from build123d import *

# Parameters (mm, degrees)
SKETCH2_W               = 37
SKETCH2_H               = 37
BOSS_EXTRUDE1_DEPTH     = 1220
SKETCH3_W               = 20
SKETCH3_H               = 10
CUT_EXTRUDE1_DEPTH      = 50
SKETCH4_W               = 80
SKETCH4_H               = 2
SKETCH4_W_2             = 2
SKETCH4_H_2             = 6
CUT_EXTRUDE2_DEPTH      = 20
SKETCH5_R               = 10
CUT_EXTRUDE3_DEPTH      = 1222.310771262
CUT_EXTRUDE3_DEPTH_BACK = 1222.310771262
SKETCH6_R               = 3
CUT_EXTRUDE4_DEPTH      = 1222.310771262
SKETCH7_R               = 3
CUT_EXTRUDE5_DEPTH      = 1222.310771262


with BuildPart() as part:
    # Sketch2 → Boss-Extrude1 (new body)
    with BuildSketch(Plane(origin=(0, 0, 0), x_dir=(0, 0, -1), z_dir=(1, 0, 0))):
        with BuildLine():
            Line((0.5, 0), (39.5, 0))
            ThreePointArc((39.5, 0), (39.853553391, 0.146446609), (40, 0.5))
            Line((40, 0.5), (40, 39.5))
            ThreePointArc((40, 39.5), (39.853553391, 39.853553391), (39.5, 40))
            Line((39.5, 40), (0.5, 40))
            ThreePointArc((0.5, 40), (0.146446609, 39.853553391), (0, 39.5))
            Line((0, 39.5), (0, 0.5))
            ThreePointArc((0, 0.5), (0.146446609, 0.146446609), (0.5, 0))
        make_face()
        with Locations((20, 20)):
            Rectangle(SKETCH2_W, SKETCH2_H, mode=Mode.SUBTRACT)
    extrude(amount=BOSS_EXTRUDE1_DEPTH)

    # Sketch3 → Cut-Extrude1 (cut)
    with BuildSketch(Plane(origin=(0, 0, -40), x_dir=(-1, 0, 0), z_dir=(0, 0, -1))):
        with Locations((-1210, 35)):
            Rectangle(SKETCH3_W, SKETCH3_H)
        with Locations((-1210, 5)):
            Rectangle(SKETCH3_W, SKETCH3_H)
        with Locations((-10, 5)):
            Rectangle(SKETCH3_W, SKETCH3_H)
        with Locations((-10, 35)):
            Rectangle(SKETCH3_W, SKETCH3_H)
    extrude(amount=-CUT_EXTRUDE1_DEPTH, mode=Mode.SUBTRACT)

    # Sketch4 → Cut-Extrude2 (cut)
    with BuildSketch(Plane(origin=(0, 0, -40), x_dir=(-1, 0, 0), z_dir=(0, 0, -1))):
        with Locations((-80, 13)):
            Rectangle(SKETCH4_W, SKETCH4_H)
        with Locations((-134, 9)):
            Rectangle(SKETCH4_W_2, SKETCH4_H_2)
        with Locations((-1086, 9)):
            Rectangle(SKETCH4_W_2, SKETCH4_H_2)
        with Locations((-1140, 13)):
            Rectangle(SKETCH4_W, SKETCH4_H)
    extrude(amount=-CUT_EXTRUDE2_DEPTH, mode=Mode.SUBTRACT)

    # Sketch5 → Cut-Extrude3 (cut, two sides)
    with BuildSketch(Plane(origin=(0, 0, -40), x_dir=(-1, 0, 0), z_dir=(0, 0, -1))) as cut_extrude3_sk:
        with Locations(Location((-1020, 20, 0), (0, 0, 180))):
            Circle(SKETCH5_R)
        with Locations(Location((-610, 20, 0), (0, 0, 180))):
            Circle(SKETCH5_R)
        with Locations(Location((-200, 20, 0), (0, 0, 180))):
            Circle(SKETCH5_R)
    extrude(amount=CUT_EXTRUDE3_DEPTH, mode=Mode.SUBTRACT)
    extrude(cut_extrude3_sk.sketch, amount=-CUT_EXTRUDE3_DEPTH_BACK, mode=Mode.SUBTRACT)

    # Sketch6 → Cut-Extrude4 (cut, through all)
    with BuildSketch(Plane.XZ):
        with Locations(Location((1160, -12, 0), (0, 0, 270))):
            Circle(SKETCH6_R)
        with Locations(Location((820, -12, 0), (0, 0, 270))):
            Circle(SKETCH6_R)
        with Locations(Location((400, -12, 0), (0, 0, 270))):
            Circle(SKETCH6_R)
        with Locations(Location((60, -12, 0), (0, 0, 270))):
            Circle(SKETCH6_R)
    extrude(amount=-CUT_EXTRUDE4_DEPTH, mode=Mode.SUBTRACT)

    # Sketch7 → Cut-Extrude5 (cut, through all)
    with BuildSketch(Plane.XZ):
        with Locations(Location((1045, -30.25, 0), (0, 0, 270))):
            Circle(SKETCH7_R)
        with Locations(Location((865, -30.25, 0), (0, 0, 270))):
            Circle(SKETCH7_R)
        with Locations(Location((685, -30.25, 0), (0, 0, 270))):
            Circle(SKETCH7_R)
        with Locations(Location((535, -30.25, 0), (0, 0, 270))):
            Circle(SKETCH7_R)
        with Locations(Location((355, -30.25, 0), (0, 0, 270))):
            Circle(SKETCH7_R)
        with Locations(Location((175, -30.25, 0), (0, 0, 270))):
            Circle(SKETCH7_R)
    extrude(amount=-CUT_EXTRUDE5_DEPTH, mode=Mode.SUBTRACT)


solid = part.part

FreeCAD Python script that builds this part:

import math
import FreeCAD as App
import Part
import Sketcher

V = App.Vector

doc = App.newDocument("Part")
body = doc.addObject("PartDesign::Body", "Body")

# Sketch on YZ plane
sketch1 = doc.addObject("Sketcher::SketchObject", "Sketch")
body.addObject(sketch1)
sketch1.AttachmentSupport = (doc.YZ_Plane, [""])
sketch1.MapMode = "FlatFace"
sketch1.addGeometry([
    Part.LineSegment(V(0, -0.5, 0), V(0, -39.5, 0)),  # 0
    Part.ArcOfCircle(Part.Circle(V(0.5, -39.5, 0), V(0, 0, 1), 0.5), math.radians(180), math.radians(270)),  # 1
    Part.LineSegment(V(0.5, -40, 0), V(39.5, -40, 0)),  # 2
    Part.ArcOfCircle(Part.Circle(V(39.5, -39.5, 0), V(0, 0, 1), 0.5), math.radians(-90), math.radians(0)),  # 3
    Part.LineSegment(V(40, -39.5, 0), V(40, -0.5, 0)),  # 4
    Part.ArcOfCircle(Part.Circle(V(39.5, -0.5, 0), V(0, 0, 1), 0.5), math.radians(0), math.radians(90)),  # 5
    Part.LineSegment(V(39.5, 0, 0), V(0.5, 0, 0)),  # 6
    Part.ArcOfCircle(Part.Circle(V(0.5, -0.5, 0), V(0, 0, 1), 0.5), math.radians(90), math.radians(180)),  # 7
    Part.LineSegment(V(1.5, -38.5, 0), V(1.5, -1.5, 0)),  # 8
    Part.LineSegment(V(1.5, -1.5, 0), V(38.5, -1.5, 0)),  # 9
    Part.LineSegment(V(38.5, -1.5, 0), V(38.5, -38.5, 0)),  # 10
    Part.LineSegment(V(38.5, -38.5, 0), V(1.5, -38.5, 0)),  # 11
], False)
sketch1.addConstraint([
    Sketcher.Constraint("Tangent", 0, 2, 1, 1),
    Sketcher.Constraint("Tangent", 1, 2, 2, 1),
    Sketcher.Constraint("Tangent", 2, 2, 3, 1),
    Sketcher.Constraint("Tangent", 3, 2, 4, 1),
    Sketcher.Constraint("Tangent", 4, 2, 5, 1),
    Sketcher.Constraint("Tangent", 5, 2, 6, 1),
    Sketcher.Constraint("Tangent", 6, 2, 7, 1),
    Sketcher.Constraint("Tangent", 7, 2, 0, 1),
    Sketcher.Constraint("Coincident", 8, 2, 9, 1),
    Sketcher.Constraint("Coincident", 9, 2, 10, 1),
    Sketcher.Constraint("Coincident", 10, 2, 11, 1),
    Sketcher.Constraint("Coincident", 11, 2, 8, 1),
    Sketcher.Constraint("Vertical", 0),
    Sketcher.Constraint("Horizontal", 2),
    Sketcher.Constraint("Vertical", 4),
    Sketcher.Constraint("Horizontal", 6),
    Sketcher.Constraint("Vertical", 8),
    Sketcher.Constraint("Horizontal", 9),
    Sketcher.Constraint("Vertical", 10),
    Sketcher.Constraint("Horizontal", 11),
    Sketcher.Constraint("Equal", 1, 3),
    Sketcher.Constraint("Equal", 3, 5),
    Sketcher.Constraint("Equal", 5, 7),
    Sketcher.Constraint("PointOnObject", 0, 2, -2),
    Sketcher.Constraint("PointOnObject", 5, 2, -1),
    Sketcher.Constraint("Equal", 6, 0),
    Sketcher.Constraint("Equal", 11, 8),
    Sketcher.Constraint("Radius", 1, 0.5),
    Sketcher.Constraint("DistanceX", 2, 1, 2, 2, 39.0),
    Sketcher.Constraint("DistanceX", 9, 1, 9, 2, 37.0),
    Sketcher.Constraint("DistanceX", 7, 3, 8, 2, 1.0),
    Sketcher.Constraint("DistanceY", 8, 2, 7, 3, 1.0),
])
pad1 = doc.addObject("PartDesign::Pad", "Pad")
body.addObject(pad1)
pad1.Profile = sketch1
pad1.Length = 1220

# Sketch on XY plane
sketch2 = doc.addObject("Sketcher::SketchObject", "Sketch001")
body.addObject(sketch2)
sketch2.AttachmentSupport = (doc.XY_Plane, [""])
sketch2.MapMode = "FlatFace"
sketch2.AttachmentOffset = App.Placement(V(0, 0, -40), App.Rotation())
sketch2.addGeometry([
    Part.LineSegment(V(1220, 40, 0), V(1220, 30, 0)),  # 0
    Part.LineSegment(V(1220, 30, 0), V(1200, 30, 0)),  # 1
    Part.LineSegment(V(1200, 30, 0), V(1200, 40, 0)),  # 2
    Part.LineSegment(V(1200, 40, 0), V(1220, 40, 0)),  # 3
    Part.LineSegment(V(1220, 10, 0), V(1220, 0, 0)),  # 4
    Part.LineSegment(V(1220, 0, 0), V(1200, 0, 0)),  # 5
    Part.LineSegment(V(1200, 0, 0), V(1200, 10, 0)),  # 6
    Part.LineSegment(V(1200, 10, 0), V(1220, 10, 0)),  # 7
    Part.LineSegment(V(20, 10, 0), V(20, 0, 0)),  # 8
    Part.LineSegment(V(20, 0, 0), V(0, 0, 0)),  # 9
    Part.LineSegment(V(0, 0, 0), V(0, 10, 0)),  # 10
    Part.LineSegment(V(0, 10, 0), V(20, 10, 0)),  # 11
    Part.LineSegment(V(20, 40, 0), V(20, 30, 0)),  # 12
    Part.LineSegment(V(20, 30, 0), V(0, 30, 0)),  # 13
    Part.LineSegment(V(0, 30, 0), V(0, 40, 0)),  # 14
    Part.LineSegment(V(0, 40, 0), V(20, 40, 0)),  # 15
], False)
sketch2.addConstraint([
    Sketcher.Constraint("Coincident", 0, 2, 1, 1),
    Sketcher.Constraint("Coincident", 1, 2, 2, 1),
    Sketcher.Constraint("Coincident", 2, 2, 3, 1),
    Sketcher.Constraint("Coincident", 3, 2, 0, 1),
    Sketcher.Constraint("Coincident", 4, 2, 5, 1),
    Sketcher.Constraint("Coincident", 5, 2, 6, 1),
    Sketcher.Constraint("Coincident", 6, 2, 7, 1),
    Sketcher.Constraint("Coincident", 7, 2, 4, 1),
    Sketcher.Constraint("Coincident", 8, 2, 9, 1),
    Sketcher.Constraint("Coincident", 9, 2, 10, 1),
    Sketcher.Constraint("Coincident", 10, 2, 11, 1),
    Sketcher.Constraint("Coincident", 11, 2, 8, 1),
    Sketcher.Constraint("Coincident", 12, 2, 13, 1),
    Sketcher.Constraint("Coincident", 13, 2, 14, 1),
    Sketcher.Constraint("Coincident", 14, 2, 15, 1),
    Sketcher.Constraint("Coincident", 15, 2, 12, 1),
    Sketcher.Constraint("Vertical", 0),
    Sketcher.Constraint("Horizontal", 1),
    Sketcher.Constraint("Vertical", 2),
    Sketcher.Constraint("Horizontal", 3),
    Sketcher.Constraint("Vertical", 4),
    Sketcher.Constraint("Horizontal", 5),
    Sketcher.Constraint("Vertical", 6),
    Sketcher.Constraint("Horizontal", 7),
    Sketcher.Constraint("Vertical", 8),
    Sketcher.Constraint("Horizontal", 9),
    Sketcher.Constraint("Vertical", 10),
    Sketcher.Constraint("Horizontal", 11),
    Sketcher.Constraint("Vertical", 12),
    Sketcher.Constraint("Horizontal", 13),
    Sketcher.Constraint("Vertical", 14),
    Sketcher.Constraint("Horizontal", 15),
    Sketcher.Constraint("Coincident", 9, 2, -1, 1),
    Sketcher.Constraint("PointOnObject", 4, 2, -1),
    Sketcher.Constraint("PointOnObject", 13, 2, -2),
    Sketcher.Constraint("Horizontal", 7, 2, 10, 2),
    Sketcher.Constraint("Horizontal", 1, 2, 12, 2),
    Sketcher.Constraint("Horizontal", 3, 2, 14, 2),
    Sketcher.Constraint("Vertical", 3, 2, 4, 2),
    Sketcher.Constraint("Vertical", 2, 2, 5, 2),
    Sketcher.Constraint("Vertical", 11, 2, 12, 2),
    Sketcher.Constraint("Equal", 7, 9),
    Sketcher.Constraint("Equal", 2, 4),
    Sketcher.Constraint("DistanceX", 1, 2, 1, 1, 20.0),
    Sketcher.Constraint("DistanceY", 0, 2, 0, 1, 10.0),
    Sketcher.Constraint("DistanceX", -1, 1, 0, 2, 1220.0),
    Sketcher.Constraint("DistanceY", -1, 1, 0, 2, 30.0),
])
pocket1 = doc.addObject("PartDesign::Pocket", "Pocket")
body.addObject(pocket1)
pocket1.Profile = sketch2
pocket1.Length = 50
pocket1.Reversed = True

# Sketch on XY plane
sketch3 = doc.addObject("Sketcher::SketchObject", "Sketch002")
body.addObject(sketch3)
sketch3.AttachmentSupport = (doc.XY_Plane, [""])
sketch3.MapMode = "FlatFace"
sketch3.AttachmentOffset = App.Placement(V(0, 0, -40), App.Rotation())
sketch3.addGeometry([
    Part.LineSegment(V(120, 14, 0), V(120, 12, 0)),  # 0
    Part.LineSegment(V(120, 12, 0), V(40, 12, 0)),  # 1
    Part.LineSegment(V(40, 12, 0), V(40, 14, 0)),  # 2
    Part.LineSegment(V(40, 14, 0), V(120, 14, 0)),  # 3
    Part.LineSegment(V(135, 12, 0), V(135, 6, 0)),  # 4
    Part.LineSegment(V(135, 6, 0), V(133, 6, 0)),  # 5
    Part.LineSegment(V(133, 6, 0), V(133, 12, 0)),  # 6
    Part.LineSegment(V(133, 12, 0), V(135, 12, 0)),  # 7
    Part.LineSegment(V(1087, 12, 0), V(1087, 6, 0)),  # 8
    Part.LineSegment(V(1087, 6, 0), V(1085, 6, 0)),  # 9
    Part.LineSegment(V(1085, 6, 0), V(1085, 12, 0)),  # 10
    Part.LineSegment(V(1085, 12, 0), V(1087, 12, 0)),  # 11
    Part.LineSegment(V(1180, 14, 0), V(1180, 12, 0)),  # 12
    Part.LineSegment(V(1180, 12, 0), V(1100, 12, 0)),  # 13
    Part.LineSegment(V(1100, 12, 0), V(1100, 14, 0)),  # 14
    Part.LineSegment(V(1100, 14, 0), V(1180, 14, 0)),  # 15
], False)
sketch3.addConstraint([
    Sketcher.Constraint("Coincident", 0, 2, 1, 1),
    Sketcher.Constraint("Coincident", 1, 2, 2, 1),
    Sketcher.Constraint("Coincident", 2, 2, 3, 1),
    Sketcher.Constraint("Coincident", 3, 2, 0, 1),
    Sketcher.Constraint("Coincident", 4, 2, 5, 1),
    Sketcher.Constraint("Coincident", 5, 2, 6, 1),
    Sketcher.Constraint("Coincident", 6, 2, 7, 1),
    Sketcher.Constraint("Coincident", 7, 2, 4, 1),
    Sketcher.Constraint("Coincident", 8, 2, 9, 1),
    Sketcher.Constraint("Coincident", 9, 2, 10, 1),
    Sketcher.Constraint("Coincident", 10, 2, 11, 1),
    Sketcher.Constraint("Coincident", 11, 2, 8, 1),
    Sketcher.Constraint("Coincident", 12, 2, 13, 1),
    Sketcher.Constraint("Coincident", 13, 2, 14, 1),
    Sketcher.Constraint("Coincident", 14, 2, 15, 1),
    Sketcher.Constraint("Coincident", 15, 2, 12, 1),
    Sketcher.Constraint("Vertical", 0),
    Sketcher.Constraint("Horizontal", 1),
    Sketcher.Constraint("Vertical", 2),
    Sketcher.Constraint("Horizontal", 3),
    Sketcher.Constraint("Vertical", 4),
    Sketcher.Constraint("Horizontal", 5),
    Sketcher.Constraint("Vertical", 6),
    Sketcher.Constraint("Horizontal", 7),
    Sketcher.Constraint("Vertical", 8),
    Sketcher.Constraint("Horizontal", 9),
    Sketcher.Constraint("Vertical", 10),
    Sketcher.Constraint("Horizontal", 11),
    Sketcher.Constraint("Vertical", 12),
    Sketcher.Constraint("Horizontal", 13),
    Sketcher.Constraint("Vertical", 14),
    Sketcher.Constraint("Horizontal", 15),
    Sketcher.Constraint("Horizontal", 1, 2, 6, 2),
    Sketcher.Constraint("Horizontal", 5, 2, 8, 2),
    Sketcher.Constraint("Horizontal", 7, 2, 10, 2),
    Sketcher.Constraint("Horizontal", 11, 2, 12, 2),
    Sketcher.Constraint("Horizontal", 3, 2, 14, 2),
    Sketcher.Constraint("Equal", 7, 9),
    Sketcher.Constraint("Equal", 3, 13),
    Sketcher.Constraint("Equal", 11, 0),
    Sketcher.Constraint("DistanceX", 1, 2, 1, 1, 80.0),
    Sketcher.Constraint("DistanceX", 5, 2, 5, 1, 2.0),
    Sketcher.Constraint("DistanceY", 4, 2, 4, 1, 6.0),
    Sketcher.Constraint("DistanceX", -1, 1, 0, 2, 120.0),
    Sketcher.Constraint("DistanceY", -1, 1, 0, 2, 12.0),
    Sketcher.Constraint("DistanceX", -1, 1, 4, 2, 135.0),
    Sketcher.Constraint("DistanceX", -1, 1, 8, 2, 1087.0),
    Sketcher.Constraint("DistanceX", -1, 1, 12, 2, 1180.0),
])
pocket2 = doc.addObject("PartDesign::Pocket", "Pocket001")
body.addObject(pocket2)
pocket2.Profile = sketch3
pocket2.Length = 20
pocket2.Reversed = True

# Sketch on XY plane
sketch4 = doc.addObject("Sketcher::SketchObject", "Sketch003")
body.addObject(sketch4)
sketch4.AttachmentSupport = (doc.XY_Plane, [""])
sketch4.MapMode = "FlatFace"
sketch4.AttachmentOffset = App.Placement(V(0, 0, -40), App.Rotation())
sketch4.addGeometry([
    Part.Circle(V(1020, 20, 0), V(0, 0, 1), 10),
    Part.Circle(V(610, 20, 0), V(0, 0, 1), 10),
    Part.Circle(V(200, 20, 0), V(0, 0, 1), 10),
], False)
sketch4.addConstraint([
    Sketcher.Constraint("Equal", 0, 1),
    Sketcher.Constraint("Equal", 1, 2),
    Sketcher.Constraint("Horizontal", 0, 3, 1, 3),
    Sketcher.Constraint("Horizontal", 1, 3, 2, 3),
    Sketcher.Constraint("Diameter", 0, 20.0),
    Sketcher.Constraint("DistanceX", -1, 1, 0, 3, 1020.0),
    Sketcher.Constraint("DistanceY", -1, 1, 0, 3, 20.0),
    Sketcher.Constraint("DistanceX", -1, 1, 1, 3, 610.0),
    Sketcher.Constraint("DistanceX", -1, 1, 2, 3, 200.0),
])
pocket3 = doc.addObject("PartDesign::Pocket", "Pocket002")
body.addObject(pocket3)
pocket3.Profile = sketch4
pocket3.Type = "ThroughAll"
pocket3.Midplane = True

# Sketch on XZ plane
sketch5 = doc.addObject("Sketcher::SketchObject", "Sketch004")
body.addObject(sketch5)
sketch5.AttachmentSupport = (doc.XZ_Plane, [""])
sketch5.MapMode = "FlatFace"
sketch5.addGeometry([
    Part.Circle(V(1160, -12, 0), V(0, 0, 1), 3),
    Part.Circle(V(820, -12, 0), V(0, 0, 1), 3),
    Part.Circle(V(400, -12, 0), V(0, 0, 1), 3),
    Part.Circle(V(60, -12, 0), V(0, 0, 1), 3),
], False)
sketch5.addConstraint([
    Sketcher.Constraint("Equal", 0, 1),
    Sketcher.Constraint("Equal", 1, 2),
    Sketcher.Constraint("Equal", 2, 3),
    Sketcher.Constraint("Horizontal", 0, 3, 1, 3),
    Sketcher.Constraint("Horizontal", 1, 3, 2, 3),
    Sketcher.Constraint("Horizontal", 2, 3, 3, 3),
    Sketcher.Constraint("Diameter", 0, 6.0),
    Sketcher.Constraint("DistanceX", -1, 1, 0, 3, 1160.0),
    Sketcher.Constraint("DistanceY", 0, 3, -1, 1, 12.0),
    Sketcher.Constraint("DistanceX", -1, 1, 1, 3, 820.0),
    Sketcher.Constraint("DistanceX", -1, 1, 2, 3, 400.0),
    Sketcher.Constraint("DistanceX", -1, 1, 3, 3, 60.0),
])
pocket4 = doc.addObject("PartDesign::Pocket", "Pocket003")
body.addObject(pocket4)
pocket4.Profile = sketch5
pocket4.Type = "ThroughAll"

# Sketch on XZ plane
sketch6 = doc.addObject("Sketcher::SketchObject", "Sketch005")
body.addObject(sketch6)
sketch6.AttachmentSupport = (doc.XZ_Plane, [""])
sketch6.MapMode = "FlatFace"
sketch6.addGeometry([
    Part.Circle(V(1045, -30.25, 0), V(0, 0, 1), 3),  # 0
    Part.Circle(V(865, -30.25, 0), V(0, 0, 1), 3),  # 1
    Part.Circle(V(685, -30.25, 0), V(0, 0, 1), 3),  # 2
    Part.Circle(V(535, -30.25, 0), V(0, 0, 1), 3),  # 3
    Part.Circle(V(355, -30.25, 0), V(0, 0, 1), 3),  # 4
    Part.Circle(V(175, -30.25, 0), V(0, 0, 1), 3),  # 5
], False)
sketch6.addConstraint([
    Sketcher.Constraint("Equal", 0, 1),
    Sketcher.Constraint("Equal", 1, 2),
    Sketcher.Constraint("Equal", 2, 3),
    Sketcher.Constraint("Equal", 3, 4),
    Sketcher.Constraint("Equal", 4, 5),
    Sketcher.Constraint("Horizontal", 0, 3, 1, 3),
    Sketcher.Constraint("Horizontal", 1, 3, 2, 3),
    Sketcher.Constraint("Horizontal", 2, 3, 3, 3),
    Sketcher.Constraint("Horizontal", 3, 3, 4, 3),
    Sketcher.Constraint("Horizontal", 4, 3, 5, 3),
    Sketcher.Constraint("Diameter", 0, 6.0),
    Sketcher.Constraint("DistanceX", -1, 1, 0, 3, 1045.0),
    Sketcher.Constraint("DistanceX", -1, 1, 1, 3, 865.0),
    Sketcher.Constraint("DistanceX", -1, 1, 2, 3, 685.0),
    Sketcher.Constraint("DistanceX", -1, 1, 3, 3, 535.0),
    Sketcher.Constraint("DistanceX", -1, 1, 4, 3, 355.0),
    Sketcher.Constraint("DistanceX", -1, 1, 5, 3, 175.0),
    Sketcher.Constraint("DistanceY", 0, 3, -1, 1, 30.25),
])
pocket5 = doc.addObject("PartDesign::Pocket", "Pocket004")
body.addObject(pocket5)
pocket5.Profile = sketch6
pocket5.Type = "ThroughAll"

doc.recompute()
